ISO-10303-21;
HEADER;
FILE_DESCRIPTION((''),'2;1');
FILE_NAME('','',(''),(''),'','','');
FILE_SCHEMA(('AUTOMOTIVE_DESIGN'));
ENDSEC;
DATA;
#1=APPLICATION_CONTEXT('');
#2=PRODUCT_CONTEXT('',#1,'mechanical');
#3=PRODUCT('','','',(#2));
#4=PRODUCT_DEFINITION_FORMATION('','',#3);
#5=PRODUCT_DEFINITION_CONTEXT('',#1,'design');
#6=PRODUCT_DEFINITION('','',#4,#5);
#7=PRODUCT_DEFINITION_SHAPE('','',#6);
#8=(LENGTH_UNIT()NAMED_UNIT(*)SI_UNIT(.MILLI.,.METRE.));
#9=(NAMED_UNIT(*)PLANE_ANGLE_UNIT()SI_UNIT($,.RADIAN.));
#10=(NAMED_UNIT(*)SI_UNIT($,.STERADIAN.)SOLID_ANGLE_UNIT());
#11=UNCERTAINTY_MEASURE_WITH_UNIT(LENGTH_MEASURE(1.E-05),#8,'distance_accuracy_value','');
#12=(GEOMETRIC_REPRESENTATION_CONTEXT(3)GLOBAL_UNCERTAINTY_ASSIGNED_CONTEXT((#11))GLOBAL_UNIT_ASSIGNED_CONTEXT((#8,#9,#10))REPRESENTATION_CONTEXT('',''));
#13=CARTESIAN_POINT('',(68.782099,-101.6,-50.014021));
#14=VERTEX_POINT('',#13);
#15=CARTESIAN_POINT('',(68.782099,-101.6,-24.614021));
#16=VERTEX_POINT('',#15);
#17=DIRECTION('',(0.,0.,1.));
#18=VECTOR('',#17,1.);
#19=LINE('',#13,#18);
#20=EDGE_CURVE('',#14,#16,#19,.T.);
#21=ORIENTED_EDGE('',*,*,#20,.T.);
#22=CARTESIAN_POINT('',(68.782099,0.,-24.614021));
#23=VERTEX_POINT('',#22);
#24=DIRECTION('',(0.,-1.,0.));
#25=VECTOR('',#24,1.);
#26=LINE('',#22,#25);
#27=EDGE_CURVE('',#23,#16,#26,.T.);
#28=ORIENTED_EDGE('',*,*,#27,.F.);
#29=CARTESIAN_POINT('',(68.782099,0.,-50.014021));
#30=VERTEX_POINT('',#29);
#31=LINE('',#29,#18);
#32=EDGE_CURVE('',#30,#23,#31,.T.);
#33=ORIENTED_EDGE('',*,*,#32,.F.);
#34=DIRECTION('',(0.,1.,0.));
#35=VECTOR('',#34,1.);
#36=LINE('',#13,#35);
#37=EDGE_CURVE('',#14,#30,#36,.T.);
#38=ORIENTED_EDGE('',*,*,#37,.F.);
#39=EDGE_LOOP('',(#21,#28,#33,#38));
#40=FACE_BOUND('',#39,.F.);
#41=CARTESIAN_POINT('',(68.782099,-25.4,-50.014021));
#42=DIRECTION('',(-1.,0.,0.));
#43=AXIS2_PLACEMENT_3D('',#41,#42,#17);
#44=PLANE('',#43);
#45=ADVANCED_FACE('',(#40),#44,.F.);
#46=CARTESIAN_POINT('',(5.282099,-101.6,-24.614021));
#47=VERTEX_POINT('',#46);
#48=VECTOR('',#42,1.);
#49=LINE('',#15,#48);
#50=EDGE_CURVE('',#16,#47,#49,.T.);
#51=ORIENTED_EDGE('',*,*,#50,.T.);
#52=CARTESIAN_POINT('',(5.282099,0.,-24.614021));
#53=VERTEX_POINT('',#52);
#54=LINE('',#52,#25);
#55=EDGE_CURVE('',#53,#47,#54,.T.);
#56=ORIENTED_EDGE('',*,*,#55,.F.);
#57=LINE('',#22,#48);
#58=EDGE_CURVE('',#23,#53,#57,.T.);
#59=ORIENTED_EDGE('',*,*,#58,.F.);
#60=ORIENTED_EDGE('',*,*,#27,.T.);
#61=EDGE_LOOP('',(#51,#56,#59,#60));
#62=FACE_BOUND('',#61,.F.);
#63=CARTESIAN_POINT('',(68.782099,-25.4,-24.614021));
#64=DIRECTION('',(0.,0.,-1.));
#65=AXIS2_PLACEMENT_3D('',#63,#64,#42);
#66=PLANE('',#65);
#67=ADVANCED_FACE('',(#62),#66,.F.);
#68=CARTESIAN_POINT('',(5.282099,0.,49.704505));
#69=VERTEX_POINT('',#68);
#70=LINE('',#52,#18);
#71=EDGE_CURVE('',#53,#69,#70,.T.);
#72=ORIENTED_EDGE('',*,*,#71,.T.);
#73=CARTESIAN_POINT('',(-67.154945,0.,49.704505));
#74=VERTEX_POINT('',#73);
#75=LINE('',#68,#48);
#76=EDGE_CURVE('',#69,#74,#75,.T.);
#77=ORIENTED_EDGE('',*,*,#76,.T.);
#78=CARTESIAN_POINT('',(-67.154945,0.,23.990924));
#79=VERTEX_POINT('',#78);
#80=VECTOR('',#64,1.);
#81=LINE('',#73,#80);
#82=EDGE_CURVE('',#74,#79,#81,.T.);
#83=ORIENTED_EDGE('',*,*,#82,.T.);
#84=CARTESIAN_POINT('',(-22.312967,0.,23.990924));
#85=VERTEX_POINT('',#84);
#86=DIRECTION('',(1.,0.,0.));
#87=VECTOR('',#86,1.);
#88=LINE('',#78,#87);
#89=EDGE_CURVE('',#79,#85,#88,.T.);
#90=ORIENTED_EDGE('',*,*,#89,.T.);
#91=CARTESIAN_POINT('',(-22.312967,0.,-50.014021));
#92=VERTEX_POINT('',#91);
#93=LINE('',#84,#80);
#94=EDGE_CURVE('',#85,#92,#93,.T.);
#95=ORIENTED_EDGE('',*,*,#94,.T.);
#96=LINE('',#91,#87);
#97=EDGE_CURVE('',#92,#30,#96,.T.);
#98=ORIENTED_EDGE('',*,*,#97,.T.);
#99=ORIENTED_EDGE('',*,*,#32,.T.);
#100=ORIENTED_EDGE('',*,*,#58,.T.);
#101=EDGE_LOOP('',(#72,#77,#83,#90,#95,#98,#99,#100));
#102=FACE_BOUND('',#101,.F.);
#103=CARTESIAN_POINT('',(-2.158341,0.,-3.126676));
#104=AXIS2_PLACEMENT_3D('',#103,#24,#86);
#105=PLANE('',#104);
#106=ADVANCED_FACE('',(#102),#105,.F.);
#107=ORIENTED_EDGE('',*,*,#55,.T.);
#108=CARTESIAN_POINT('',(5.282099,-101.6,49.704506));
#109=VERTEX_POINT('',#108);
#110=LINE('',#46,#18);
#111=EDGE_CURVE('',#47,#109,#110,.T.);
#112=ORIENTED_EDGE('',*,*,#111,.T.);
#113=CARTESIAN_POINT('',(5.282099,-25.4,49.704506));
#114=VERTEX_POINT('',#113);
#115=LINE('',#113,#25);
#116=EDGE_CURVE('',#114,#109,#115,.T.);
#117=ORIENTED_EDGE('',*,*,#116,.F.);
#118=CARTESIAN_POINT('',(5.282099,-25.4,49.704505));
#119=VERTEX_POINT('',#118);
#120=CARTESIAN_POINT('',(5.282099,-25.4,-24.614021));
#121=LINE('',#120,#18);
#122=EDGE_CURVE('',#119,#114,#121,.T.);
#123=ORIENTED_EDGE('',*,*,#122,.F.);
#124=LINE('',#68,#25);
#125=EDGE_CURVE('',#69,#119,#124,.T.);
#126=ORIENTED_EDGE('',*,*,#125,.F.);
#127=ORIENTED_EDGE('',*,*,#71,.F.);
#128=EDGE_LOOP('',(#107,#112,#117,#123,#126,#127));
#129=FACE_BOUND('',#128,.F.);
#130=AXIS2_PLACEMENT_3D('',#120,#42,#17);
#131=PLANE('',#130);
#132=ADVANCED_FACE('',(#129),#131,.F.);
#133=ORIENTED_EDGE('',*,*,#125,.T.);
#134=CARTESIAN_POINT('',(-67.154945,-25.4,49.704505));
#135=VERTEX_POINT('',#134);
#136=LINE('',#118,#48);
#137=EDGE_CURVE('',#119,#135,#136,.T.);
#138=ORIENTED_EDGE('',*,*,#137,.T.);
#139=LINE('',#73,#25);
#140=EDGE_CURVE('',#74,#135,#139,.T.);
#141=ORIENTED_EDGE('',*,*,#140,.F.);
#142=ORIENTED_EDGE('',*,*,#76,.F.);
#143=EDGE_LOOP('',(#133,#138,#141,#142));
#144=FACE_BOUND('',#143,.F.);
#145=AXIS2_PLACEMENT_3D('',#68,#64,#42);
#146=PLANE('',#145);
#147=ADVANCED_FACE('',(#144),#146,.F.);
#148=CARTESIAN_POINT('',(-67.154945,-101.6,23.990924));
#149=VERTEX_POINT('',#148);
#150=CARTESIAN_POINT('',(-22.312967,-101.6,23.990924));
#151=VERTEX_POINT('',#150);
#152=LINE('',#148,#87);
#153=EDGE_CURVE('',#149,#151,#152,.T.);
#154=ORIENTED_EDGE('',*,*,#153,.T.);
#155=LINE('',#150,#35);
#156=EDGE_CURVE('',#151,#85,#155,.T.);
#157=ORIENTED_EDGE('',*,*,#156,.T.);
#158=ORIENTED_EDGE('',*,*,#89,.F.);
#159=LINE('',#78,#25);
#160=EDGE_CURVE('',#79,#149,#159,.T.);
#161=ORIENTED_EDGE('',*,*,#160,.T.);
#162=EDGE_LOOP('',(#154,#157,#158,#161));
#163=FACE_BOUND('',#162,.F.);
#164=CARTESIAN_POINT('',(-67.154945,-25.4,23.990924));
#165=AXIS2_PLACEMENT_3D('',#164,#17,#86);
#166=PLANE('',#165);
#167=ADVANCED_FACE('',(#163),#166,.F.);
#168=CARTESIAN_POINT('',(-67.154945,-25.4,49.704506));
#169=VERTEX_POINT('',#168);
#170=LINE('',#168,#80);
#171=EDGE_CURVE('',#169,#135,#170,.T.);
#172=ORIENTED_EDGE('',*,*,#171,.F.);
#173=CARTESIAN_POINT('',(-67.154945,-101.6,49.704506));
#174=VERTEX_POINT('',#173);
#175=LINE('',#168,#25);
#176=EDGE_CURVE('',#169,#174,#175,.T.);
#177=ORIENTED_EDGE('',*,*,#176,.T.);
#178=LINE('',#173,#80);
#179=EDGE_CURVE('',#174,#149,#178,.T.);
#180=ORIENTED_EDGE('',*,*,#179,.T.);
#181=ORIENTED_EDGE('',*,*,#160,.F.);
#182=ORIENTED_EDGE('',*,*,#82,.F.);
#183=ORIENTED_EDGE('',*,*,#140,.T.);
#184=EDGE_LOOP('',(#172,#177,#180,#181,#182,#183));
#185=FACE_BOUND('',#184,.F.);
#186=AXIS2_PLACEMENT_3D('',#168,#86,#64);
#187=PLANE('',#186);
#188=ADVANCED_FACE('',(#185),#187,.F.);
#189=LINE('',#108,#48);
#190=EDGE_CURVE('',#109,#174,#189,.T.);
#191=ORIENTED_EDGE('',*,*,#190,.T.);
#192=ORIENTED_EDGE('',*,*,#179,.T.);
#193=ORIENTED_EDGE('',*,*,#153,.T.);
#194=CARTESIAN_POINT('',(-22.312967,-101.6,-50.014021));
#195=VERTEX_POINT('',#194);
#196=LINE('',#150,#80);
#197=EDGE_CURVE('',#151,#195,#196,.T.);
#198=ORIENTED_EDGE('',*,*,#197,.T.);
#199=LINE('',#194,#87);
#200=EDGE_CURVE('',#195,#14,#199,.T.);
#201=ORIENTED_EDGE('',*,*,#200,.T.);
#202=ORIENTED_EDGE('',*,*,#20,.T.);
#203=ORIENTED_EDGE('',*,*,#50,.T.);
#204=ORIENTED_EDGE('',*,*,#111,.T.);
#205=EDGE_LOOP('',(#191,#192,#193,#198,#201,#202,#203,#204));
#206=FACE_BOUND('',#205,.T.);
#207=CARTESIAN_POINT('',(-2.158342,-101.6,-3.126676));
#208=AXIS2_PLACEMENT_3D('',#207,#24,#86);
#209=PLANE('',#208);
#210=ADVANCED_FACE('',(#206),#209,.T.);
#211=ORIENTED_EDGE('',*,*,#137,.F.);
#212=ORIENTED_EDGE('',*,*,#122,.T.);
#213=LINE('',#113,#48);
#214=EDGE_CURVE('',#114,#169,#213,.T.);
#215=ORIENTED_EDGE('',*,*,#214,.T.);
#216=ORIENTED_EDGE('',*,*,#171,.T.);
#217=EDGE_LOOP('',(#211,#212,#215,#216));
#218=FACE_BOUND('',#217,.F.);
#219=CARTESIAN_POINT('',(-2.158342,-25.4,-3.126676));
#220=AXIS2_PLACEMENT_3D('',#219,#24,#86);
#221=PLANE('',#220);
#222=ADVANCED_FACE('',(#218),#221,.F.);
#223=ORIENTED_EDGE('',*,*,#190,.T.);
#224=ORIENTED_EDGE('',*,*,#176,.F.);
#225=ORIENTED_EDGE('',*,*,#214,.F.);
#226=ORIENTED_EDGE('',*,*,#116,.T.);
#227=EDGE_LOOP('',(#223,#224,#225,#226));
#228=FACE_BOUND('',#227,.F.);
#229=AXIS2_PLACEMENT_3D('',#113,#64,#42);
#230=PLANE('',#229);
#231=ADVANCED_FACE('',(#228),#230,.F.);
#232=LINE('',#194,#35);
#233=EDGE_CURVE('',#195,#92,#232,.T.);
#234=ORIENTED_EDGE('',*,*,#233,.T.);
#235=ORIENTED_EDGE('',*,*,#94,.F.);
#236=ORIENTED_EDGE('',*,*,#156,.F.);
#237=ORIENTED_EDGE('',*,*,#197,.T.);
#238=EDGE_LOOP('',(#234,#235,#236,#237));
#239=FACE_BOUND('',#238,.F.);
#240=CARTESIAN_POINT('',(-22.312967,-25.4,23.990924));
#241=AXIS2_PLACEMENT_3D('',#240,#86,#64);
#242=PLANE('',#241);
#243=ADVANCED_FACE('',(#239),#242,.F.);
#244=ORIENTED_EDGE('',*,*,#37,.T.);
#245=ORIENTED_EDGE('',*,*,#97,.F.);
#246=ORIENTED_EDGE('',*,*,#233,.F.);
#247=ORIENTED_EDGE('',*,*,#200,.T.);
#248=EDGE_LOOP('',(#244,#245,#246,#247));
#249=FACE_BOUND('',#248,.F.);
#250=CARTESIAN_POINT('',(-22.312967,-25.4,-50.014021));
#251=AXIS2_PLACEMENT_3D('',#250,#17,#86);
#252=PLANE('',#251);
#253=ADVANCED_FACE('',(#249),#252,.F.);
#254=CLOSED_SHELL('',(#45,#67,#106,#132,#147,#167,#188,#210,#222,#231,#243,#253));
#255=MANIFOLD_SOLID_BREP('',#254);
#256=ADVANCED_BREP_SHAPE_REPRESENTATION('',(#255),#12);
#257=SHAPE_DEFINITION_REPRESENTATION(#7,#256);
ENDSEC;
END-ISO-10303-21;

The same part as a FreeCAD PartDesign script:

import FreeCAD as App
import Part
import Sketcher
Q = App.Units.Quantity

doc = App.newDocument("Part")
body = doc.addObject("PartDesign::Body", "Body")

# Sketch on XZ plane
sketch1 = doc.addObject("Sketcher::SketchObject", "Sketch")
body.addObject(sketch1)
sketch1.AttachmentSupport = (doc.XZ_Plane, [""])
sketch1.MapMode = "FlatFace"
sketch1.addGeometry([
    Part.LineSegment(App.Vector(5.282099, 49.704505, 0), App.Vector(-67.154945, 49.704505, 0)),  # 0
    Part.LineSegment(App.Vector(-67.154945, 49.704505, 0), App.Vector(-67.154945, 23.990924, 0)),  # 1
    Part.LineSegment(App.Vector(-67.154945, 23.990924, 0), App.Vector(-22.312967, 23.990924, 0)),  # 2
    Part.LineSegment(App.Vector(-22.312967, 23.990924, 0), App.Vector(-22.312967, -50.014021, 0)),  # 3
    Part.LineSegment(App.Vector(-22.312967, -50.014021, 0), App.Vector(68.782099, -50.014021, 0)),  # 4
    Part.LineSegment(App.Vector(68.782099, -50.014021, 0), App.Vector(68.782099, -24.614021, 0)),  # 5
    Part.LineSegment(App.Vector(68.782099, -24.614021, 0), App.Vector(5.282099, -24.614021, 0)),  # 6
    Part.LineSegment(App.Vector(5.282099, -24.614021, 0), App.Vector(5.282099, 49.704505, 0)),  # 7
], False)
sketch1.addConstraint([
    Sketcher.Constraint("Coincident", 0, 2, 1, 1),
    Sketcher.Constraint("Coincident", 1, 2, 2, 1),
    Sketcher.Constraint("Coincident", 2, 2, 3, 1),
    Sketcher.Constraint("Coincident", 3, 2, 4, 1),
    Sketcher.Constraint("Coincident", 4, 2, 5, 1),
    Sketcher.Constraint("Coincident", 5, 2, 6, 1),
    Sketcher.Constraint("Coincident", 6, 2, 7, 1),
    Sketcher.Constraint("Coincident", 7, 2, 0, 1),
    Sketcher.Constraint("Horizontal", 0),
    Sketcher.Constraint("Vertical", 1),
    Sketcher.Constraint("Horizontal", 2),
    Sketcher.Constraint("Vertical", 3),
    Sketcher.Constraint("Horizontal", 4),
    Sketcher.Constraint("Vertical", 5),
    Sketcher.Constraint("Horizontal", 6),
    Sketcher.Constraint("Vertical", 7),
    Sketcher.Constraint("DistanceY", 5, 1, 5, 2, Q("1 in")),
    Sketcher.Constraint("DistanceX", 6, 2, 6, 1, Q("2.5 in")),
    Sketcher.Constraint("DistanceY", 1, 2, 1, 1, 25.713581),
    Sketcher.Constraint("DistanceX", -1, 1, 4, 2, 68.782099),
    Sketcher.Constraint("DistanceX", 0, 2, 0, 1, 72.437044),
    Sketcher.Constraint("DistanceX", 2, 1, 2, 2, 44.841978),
    Sketcher.Constraint("DistanceY", 3, 2, 3, 1, 74.004945),
    Sketcher.Constraint("DistanceY", 3, 2, -1, 1, 50.014021),
])
pad1 = doc.addObject("PartDesign::Pad", "Pad")
body.addObject(pad1)
pad1.Profile = sketch1
pad1.Length = Q("1 in")

# Sketch on XZ plane
sketch2 = doc.addObject("Sketcher::SketchObject", "Sketch001")
body.addObject(sketch2)
sketch2.AttachmentSupport = (doc.XZ_Plane, [""])
sketch2.MapMode = "FlatFace"
sketch2.AttachmentOffset = App.Placement(App.Vector(0, 0, 1 * 25.4), App.Rotation())
sketch2.addGeometry([
    Part.LineSegment(App.Vector(68.782099, -50.014021, 0), App.Vector(68.782099, -24.614021, 0)),  # 0
    Part.LineSegment(App.Vector(68.782099, -24.614021, 0), App.Vector(5.282099, -24.614021, 0)),  # 1
    Part.LineSegment(App.Vector(5.282099, -24.614021, 0), App.Vector(5.282099, 49.704506, 0)),  # 2
    Part.LineSegment(App.Vector(5.282099, 49.704506, 0), App.Vector(-67.154945, 49.704506, 0)),  # 3
    Part.LineSegment(App.Vector(-67.154945, 49.704506, 0), App.Vector(-67.154945, 23.990924, 0)),  # 4
    Part.LineSegment(App.Vector(-67.154945, 23.990924, 0), App.Vector(-22.312967, 23.990924, 0)),  # 5
    Part.LineSegment(App.Vector(-22.312967, 23.990924, 0), App.Vector(-22.312967, -50.014021, 0)),  # 6
    Part.LineSegment(App.Vector(-22.312967, -50.014021, 0), App.Vector(68.782099, -50.014021, 0)),  # 7
], False)
sketch2.addConstraint([
    Sketcher.Constraint("Coincident", 0, 2, 1, 1),
    Sketcher.Constraint("Coincident", 1, 2, 2, 1),
    Sketcher.Constraint("Coincident", 2, 2, 3, 1),
    Sketcher.Constraint("Coincident", 3, 2, 4, 1),
    Sketcher.Constraint("Coincident", 4, 2, 5, 1),
    Sketcher.Constraint("Coincident", 5, 2, 6, 1),
    Sketcher.Constraint("Coincident", 6, 2, 7, 1),
    Sketcher.Constraint("Coincident", 7, 2, 0, 1),
    Sketcher.Constraint("Vertical", 0),
    Sketcher.Constraint("Horizontal", 1),
    Sketcher.Constraint("Vertical", 2),
    Sketcher.Constraint("Horizontal", 3),
    Sketcher.Constraint("Vertical", 4),
    Sketcher.Constraint("Horizontal", 5),
    Sketcher.Constraint("Vertical", 6),
    Sketcher.Constraint("Horizontal", 7),
    Sketcher.Constraint("DistanceY", 0, 1, 0, 2, Q("1 in")),
    Sketcher.Constraint("DistanceX", 1, 2, 1, 1, Q("2.5 in")),
    Sketcher.Constraint("DistanceX", -1, 1, 0, 2, 68.782099),
    Sketcher.Constraint("DistanceX", 3, 2, 3, 1, 72.437044),
    Sketcher.Constraint("DistanceX", 5, 1, 5, 2, 44.841978),
    Sketcher.Constraint("DistanceY", 2, 1, 2, 2, 74.318527),
    Sketcher.Constraint("DistanceY", 4, 2, 4, 1, 25.713582),
    Sketcher.Constraint("DistanceY", 0, 2, -1, 1, 24.614021),
])
pad2 = doc.addObject("PartDesign::Pad", "Pad001")
body.addObject(pad2)
pad2.Profile = sketch2
pad2.Length = Q("3 in")

doc.recompute()
